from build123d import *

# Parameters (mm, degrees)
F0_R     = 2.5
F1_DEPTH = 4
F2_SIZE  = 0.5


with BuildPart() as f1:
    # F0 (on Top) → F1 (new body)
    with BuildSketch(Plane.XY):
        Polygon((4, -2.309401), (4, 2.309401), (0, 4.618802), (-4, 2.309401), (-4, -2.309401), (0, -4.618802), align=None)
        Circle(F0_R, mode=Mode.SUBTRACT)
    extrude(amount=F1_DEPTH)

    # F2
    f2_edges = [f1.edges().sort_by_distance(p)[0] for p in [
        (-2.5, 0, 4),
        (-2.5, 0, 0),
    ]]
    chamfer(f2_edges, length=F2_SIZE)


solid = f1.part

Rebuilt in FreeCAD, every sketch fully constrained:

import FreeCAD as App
import Part
import Sketcher
from FreeCAD import Vector
Q = App.Units.Quantity


def edges_at(feature, points):
    """Names of the edges that pass closest to the given points."""
    edges = feature.Shape.Edges
    near = lambda p: min(range(len(edges)), key=lambda i: edges[i].distToShape(Part.Vertex(*p))[0])
    return sorted({f"Edge{near(p) + 1}" for p in points})

doc = App.newDocument("Part")
body = doc.addObject("PartDesign::Body", "Body")

# Sketch on XY plane
sketch1 = body.newObject("Sketcher::SketchObject", "Sketch")
sketch1.AttachmentSupport = (doc.getObject("XY_Plane"), [""])
sketch1.MapMode = "FlatFace"
sketch1.addGeometry([
    Part.LineSegment(Vector(4, -2.3, 0), Vector(4, 2.3, 0)),  # 0
    Part.LineSegment(Vector(4, 2.3, 0), Vector(0, 4.6, 0)),  # 1
    Part.LineSegment(Vector(0, 4.6, 0), Vector(-4, 2.3, 0)),  # 2
    Part.LineSegment(Vector(-4, 2.3, 0), Vector(-4, -2.3, 0)),  # 3
    Part.LineSegment(Vector(-4, -2.3, 0), Vector(0, -4.6, 0)),  # 4
    Part.LineSegment(Vector(0, -4.6, 0), Vector(4, -2.3, 0)),  # 5
    Part.Circle(Vector(0, 0, 0), Vector(0, 0, 1), 2.5),  # 6
], False)
sketch1.addConstraint([
    Sketcher.Constraint("Coincident", 0, 2, 1, 1),
    Sketcher.Constraint("Coincident", 1, 2, 2, 1),
    Sketcher.Constraint("Coincident", 2, 2, 3, 1),
    Sketcher.Constraint("Coincident", 3, 2, 4, 1),
    Sketcher.Constraint("Coincident", 4, 2, 5, 1),
    Sketcher.Constraint("Coincident", 5, 2, 0, 1),
    Sketcher.Constraint("Vertical", 0),
    Sketcher.Constraint("Vertical", 3),
    Sketcher.Constraint("Coincident", 6, 3, -1, 1),
    Sketcher.Constraint("Symmetric", 0, 2, 3, 2, -1, 1),
    Sketcher.Constraint("Symmetric", 1, 2, 4, 2, -1, 1),
    Sketcher.Constraint("PointOnObject", 1, 2, -2),
    Sketcher.Constraint("Parallel", 2, 5),
    Sketcher.Constraint("Horizontal", 0, 2, 2, 2),
    Sketcher.Constraint("Diameter", 6, 5.0),
    Sketcher.Constraint("Angle", 1, Q("150.000001 deg")),
    Sketcher.Constraint("DistanceX", -1, 1, 0, 2, 4.0),
    Sketcher.Constraint("DistanceY", 0, 1, 0, 2, 4.618802),
])
pad1 = body.newObject("PartDesign::Pad", "Pad")
pad1.Profile = sketch1
pad1.Length = 4
doc.recompute()

chamfer = body.newObject("PartDesign::Chamfer", "Chamfer")
chamfer.Base = (pad1, edges_at(pad1, [(-2.5, 0, 4), (-2.5, 0, 0)]))
chamfer.Size = 0.5

doc.recompute()
